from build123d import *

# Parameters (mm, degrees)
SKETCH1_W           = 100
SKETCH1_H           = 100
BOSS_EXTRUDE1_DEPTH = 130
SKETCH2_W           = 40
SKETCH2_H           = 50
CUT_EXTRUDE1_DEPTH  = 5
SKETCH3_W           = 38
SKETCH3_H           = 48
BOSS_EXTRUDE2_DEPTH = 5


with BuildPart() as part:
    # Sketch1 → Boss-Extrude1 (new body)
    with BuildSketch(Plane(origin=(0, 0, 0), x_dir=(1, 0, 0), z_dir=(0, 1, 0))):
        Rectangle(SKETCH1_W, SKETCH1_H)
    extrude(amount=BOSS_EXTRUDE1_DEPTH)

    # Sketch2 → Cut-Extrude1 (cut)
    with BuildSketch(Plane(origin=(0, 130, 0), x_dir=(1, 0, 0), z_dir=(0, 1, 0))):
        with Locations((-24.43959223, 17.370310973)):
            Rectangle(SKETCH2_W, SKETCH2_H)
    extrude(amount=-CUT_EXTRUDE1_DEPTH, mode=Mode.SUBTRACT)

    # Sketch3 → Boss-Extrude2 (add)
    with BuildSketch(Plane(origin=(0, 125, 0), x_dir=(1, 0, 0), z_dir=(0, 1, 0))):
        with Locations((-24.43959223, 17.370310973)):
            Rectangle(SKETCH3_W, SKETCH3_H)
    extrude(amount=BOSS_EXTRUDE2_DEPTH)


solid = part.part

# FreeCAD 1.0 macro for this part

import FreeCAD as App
import Part
import Sketcher
from FreeCAD import Vector
Q = App.Units.Quantity


def add_polygon(sketch, points):
    """Adds a closed chain of lines whose ends are joined by coincident constraints."""
    first, n = sketch.GeometryCount, len(points)
    for a, b in zip(points, points[1:] + points[:1]):
        sketch.addGeometry(Part.LineSegment(App.Vector(*a, 0), App.Vector(*b, 0)), False)
    for i in range(n):
        sketch.addConstraint(Sketcher.Constraint("Coincident", first + i, 2, first + (i + 1) % n, 1))

doc = App.newDocument("Part")
body = doc.addObject("PartDesign::Body", "Body")

sketch1 = body.newObject("Sketcher::SketchObject", "Sketch")
sketch1.AttachmentSupport = (doc.getObject("XZ_Plane"), [""])
sketch1.MapMode = "FlatFace"
add_polygon(sketch1, [(-50, -50), (-50, 50), (50, 50), (50, -50)])
sketch1.addConstraint(Sketcher.Constraint("Vertical", 0))
sketch1.addConstraint(Sketcher.Constraint("Horizontal", 1))
sketch1.addConstraint(Sketcher.Constraint("Vertical", 2))
sketch1.addConstraint(Sketcher.Constraint("Horizontal", 3))
sketch1.addConstraint(Sketcher.Constraint("Symmetric", 0, 2, 2, 2, -1, 1))
sketch1.addConstraint(Sketcher.Constraint("Equal", 3, 0))
sketch1.addConstraint(Sketcher.Constraint("DistanceX", 1, 1, 1, 2, Q("100 mm")))
pad1 = body.newObject("PartDesign::Pad", "Pad")
pad1.Profile = sketch1
pad1.Length = 130
pad1.Reversed = True

sketch2 = body.newObject("Sketcher::SketchObject", "Sketch001")
sketch2.AttachmentSupport = (doc.getObject("XZ_Plane"), [""])
sketch2.MapMode = "FlatFace"
sketch2.AttachmentOffset = App.Placement(Vector(0, 0, -130), App.Rotation())
add_polygon(sketch2, [(-44, -42), (-44, 8), (-4, 8), (-4, -42)])
sketch2.addConstraint(Sketcher.Constraint("Vertical", 0))
sketch2.addConstraint(Sketcher.Constraint("Horizontal", 1))
sketch2.addConstraint(Sketcher.Constraint("Vertical", 2))
sketch2.addConstraint(Sketcher.Constraint("Horizontal", 3))
sketch2.addConstraint(Sketcher.Constraint("DistanceX", 1, 1, 1, 2, Q("40 mm")))
sketch2.addConstraint(Sketcher.Constraint("DistanceY", 0, 1, 0, 2, Q("50 mm")))
sketch2.addConstraint(Sketcher.Constraint("DistanceY", -1, 1, 0, 2, Q("7.629689 mm")))
sketch2.addConstraint(Sketcher.Constraint("DistanceX", 0, 2, -1, 1, Q("44.439592 mm")))
pocket1 = body.newObject("PartDesign::Pocket", "Pocket")
pocket1.Profile = sketch2
pocket1.Length = 5
pocket1.Reversed = True

sketch3 = body.newObject("Sketcher::SketchObject", "Sketch002")
sketch3.AttachmentSupport = (doc.getObject("XZ_Plane"), [""])
sketch3.MapMode = "FlatFace"
sketch3.AttachmentOffset = App.Placement(Vector(0, 0, -125), App.Rotation())
add_polygon(sketch3, [(-43, -41), (-43, 7), (-5, 7), (-5, -41)])
sketch3.addConstraint(Sketcher.Constraint("Vertical", 0))
sketch3.addConstraint(Sketcher.Constraint("Horizontal", 1))
sketch3.addConstraint(Sketcher.Constraint("Vertical", 2))
sketch3.addConstraint(Sketcher.Constraint("Horizontal", 3))
sketch3.addConstraint(Sketcher.Constraint("DistanceX", 1, 1, 1, 2, Q("38 mm")))
sketch3.addConstraint(Sketcher.Constraint("DistanceY", 0, 1, 0, 2, Q("48 mm")))
sketch3.addConstraint(Sketcher.Constraint("DistanceY", -1, 1, 0, 2, Q("6.629689 mm")))
sketch3.addConstraint(Sketcher.Constraint("DistanceX", 0, 2, -1, 1, Q("43.439592 mm")))
pad2 = body.newObject("PartDesign::Pad", "Pad001")
pad2.Profile = sketch3
pad2.Length = 5
pad2.Reversed = True

doc.recompute()
